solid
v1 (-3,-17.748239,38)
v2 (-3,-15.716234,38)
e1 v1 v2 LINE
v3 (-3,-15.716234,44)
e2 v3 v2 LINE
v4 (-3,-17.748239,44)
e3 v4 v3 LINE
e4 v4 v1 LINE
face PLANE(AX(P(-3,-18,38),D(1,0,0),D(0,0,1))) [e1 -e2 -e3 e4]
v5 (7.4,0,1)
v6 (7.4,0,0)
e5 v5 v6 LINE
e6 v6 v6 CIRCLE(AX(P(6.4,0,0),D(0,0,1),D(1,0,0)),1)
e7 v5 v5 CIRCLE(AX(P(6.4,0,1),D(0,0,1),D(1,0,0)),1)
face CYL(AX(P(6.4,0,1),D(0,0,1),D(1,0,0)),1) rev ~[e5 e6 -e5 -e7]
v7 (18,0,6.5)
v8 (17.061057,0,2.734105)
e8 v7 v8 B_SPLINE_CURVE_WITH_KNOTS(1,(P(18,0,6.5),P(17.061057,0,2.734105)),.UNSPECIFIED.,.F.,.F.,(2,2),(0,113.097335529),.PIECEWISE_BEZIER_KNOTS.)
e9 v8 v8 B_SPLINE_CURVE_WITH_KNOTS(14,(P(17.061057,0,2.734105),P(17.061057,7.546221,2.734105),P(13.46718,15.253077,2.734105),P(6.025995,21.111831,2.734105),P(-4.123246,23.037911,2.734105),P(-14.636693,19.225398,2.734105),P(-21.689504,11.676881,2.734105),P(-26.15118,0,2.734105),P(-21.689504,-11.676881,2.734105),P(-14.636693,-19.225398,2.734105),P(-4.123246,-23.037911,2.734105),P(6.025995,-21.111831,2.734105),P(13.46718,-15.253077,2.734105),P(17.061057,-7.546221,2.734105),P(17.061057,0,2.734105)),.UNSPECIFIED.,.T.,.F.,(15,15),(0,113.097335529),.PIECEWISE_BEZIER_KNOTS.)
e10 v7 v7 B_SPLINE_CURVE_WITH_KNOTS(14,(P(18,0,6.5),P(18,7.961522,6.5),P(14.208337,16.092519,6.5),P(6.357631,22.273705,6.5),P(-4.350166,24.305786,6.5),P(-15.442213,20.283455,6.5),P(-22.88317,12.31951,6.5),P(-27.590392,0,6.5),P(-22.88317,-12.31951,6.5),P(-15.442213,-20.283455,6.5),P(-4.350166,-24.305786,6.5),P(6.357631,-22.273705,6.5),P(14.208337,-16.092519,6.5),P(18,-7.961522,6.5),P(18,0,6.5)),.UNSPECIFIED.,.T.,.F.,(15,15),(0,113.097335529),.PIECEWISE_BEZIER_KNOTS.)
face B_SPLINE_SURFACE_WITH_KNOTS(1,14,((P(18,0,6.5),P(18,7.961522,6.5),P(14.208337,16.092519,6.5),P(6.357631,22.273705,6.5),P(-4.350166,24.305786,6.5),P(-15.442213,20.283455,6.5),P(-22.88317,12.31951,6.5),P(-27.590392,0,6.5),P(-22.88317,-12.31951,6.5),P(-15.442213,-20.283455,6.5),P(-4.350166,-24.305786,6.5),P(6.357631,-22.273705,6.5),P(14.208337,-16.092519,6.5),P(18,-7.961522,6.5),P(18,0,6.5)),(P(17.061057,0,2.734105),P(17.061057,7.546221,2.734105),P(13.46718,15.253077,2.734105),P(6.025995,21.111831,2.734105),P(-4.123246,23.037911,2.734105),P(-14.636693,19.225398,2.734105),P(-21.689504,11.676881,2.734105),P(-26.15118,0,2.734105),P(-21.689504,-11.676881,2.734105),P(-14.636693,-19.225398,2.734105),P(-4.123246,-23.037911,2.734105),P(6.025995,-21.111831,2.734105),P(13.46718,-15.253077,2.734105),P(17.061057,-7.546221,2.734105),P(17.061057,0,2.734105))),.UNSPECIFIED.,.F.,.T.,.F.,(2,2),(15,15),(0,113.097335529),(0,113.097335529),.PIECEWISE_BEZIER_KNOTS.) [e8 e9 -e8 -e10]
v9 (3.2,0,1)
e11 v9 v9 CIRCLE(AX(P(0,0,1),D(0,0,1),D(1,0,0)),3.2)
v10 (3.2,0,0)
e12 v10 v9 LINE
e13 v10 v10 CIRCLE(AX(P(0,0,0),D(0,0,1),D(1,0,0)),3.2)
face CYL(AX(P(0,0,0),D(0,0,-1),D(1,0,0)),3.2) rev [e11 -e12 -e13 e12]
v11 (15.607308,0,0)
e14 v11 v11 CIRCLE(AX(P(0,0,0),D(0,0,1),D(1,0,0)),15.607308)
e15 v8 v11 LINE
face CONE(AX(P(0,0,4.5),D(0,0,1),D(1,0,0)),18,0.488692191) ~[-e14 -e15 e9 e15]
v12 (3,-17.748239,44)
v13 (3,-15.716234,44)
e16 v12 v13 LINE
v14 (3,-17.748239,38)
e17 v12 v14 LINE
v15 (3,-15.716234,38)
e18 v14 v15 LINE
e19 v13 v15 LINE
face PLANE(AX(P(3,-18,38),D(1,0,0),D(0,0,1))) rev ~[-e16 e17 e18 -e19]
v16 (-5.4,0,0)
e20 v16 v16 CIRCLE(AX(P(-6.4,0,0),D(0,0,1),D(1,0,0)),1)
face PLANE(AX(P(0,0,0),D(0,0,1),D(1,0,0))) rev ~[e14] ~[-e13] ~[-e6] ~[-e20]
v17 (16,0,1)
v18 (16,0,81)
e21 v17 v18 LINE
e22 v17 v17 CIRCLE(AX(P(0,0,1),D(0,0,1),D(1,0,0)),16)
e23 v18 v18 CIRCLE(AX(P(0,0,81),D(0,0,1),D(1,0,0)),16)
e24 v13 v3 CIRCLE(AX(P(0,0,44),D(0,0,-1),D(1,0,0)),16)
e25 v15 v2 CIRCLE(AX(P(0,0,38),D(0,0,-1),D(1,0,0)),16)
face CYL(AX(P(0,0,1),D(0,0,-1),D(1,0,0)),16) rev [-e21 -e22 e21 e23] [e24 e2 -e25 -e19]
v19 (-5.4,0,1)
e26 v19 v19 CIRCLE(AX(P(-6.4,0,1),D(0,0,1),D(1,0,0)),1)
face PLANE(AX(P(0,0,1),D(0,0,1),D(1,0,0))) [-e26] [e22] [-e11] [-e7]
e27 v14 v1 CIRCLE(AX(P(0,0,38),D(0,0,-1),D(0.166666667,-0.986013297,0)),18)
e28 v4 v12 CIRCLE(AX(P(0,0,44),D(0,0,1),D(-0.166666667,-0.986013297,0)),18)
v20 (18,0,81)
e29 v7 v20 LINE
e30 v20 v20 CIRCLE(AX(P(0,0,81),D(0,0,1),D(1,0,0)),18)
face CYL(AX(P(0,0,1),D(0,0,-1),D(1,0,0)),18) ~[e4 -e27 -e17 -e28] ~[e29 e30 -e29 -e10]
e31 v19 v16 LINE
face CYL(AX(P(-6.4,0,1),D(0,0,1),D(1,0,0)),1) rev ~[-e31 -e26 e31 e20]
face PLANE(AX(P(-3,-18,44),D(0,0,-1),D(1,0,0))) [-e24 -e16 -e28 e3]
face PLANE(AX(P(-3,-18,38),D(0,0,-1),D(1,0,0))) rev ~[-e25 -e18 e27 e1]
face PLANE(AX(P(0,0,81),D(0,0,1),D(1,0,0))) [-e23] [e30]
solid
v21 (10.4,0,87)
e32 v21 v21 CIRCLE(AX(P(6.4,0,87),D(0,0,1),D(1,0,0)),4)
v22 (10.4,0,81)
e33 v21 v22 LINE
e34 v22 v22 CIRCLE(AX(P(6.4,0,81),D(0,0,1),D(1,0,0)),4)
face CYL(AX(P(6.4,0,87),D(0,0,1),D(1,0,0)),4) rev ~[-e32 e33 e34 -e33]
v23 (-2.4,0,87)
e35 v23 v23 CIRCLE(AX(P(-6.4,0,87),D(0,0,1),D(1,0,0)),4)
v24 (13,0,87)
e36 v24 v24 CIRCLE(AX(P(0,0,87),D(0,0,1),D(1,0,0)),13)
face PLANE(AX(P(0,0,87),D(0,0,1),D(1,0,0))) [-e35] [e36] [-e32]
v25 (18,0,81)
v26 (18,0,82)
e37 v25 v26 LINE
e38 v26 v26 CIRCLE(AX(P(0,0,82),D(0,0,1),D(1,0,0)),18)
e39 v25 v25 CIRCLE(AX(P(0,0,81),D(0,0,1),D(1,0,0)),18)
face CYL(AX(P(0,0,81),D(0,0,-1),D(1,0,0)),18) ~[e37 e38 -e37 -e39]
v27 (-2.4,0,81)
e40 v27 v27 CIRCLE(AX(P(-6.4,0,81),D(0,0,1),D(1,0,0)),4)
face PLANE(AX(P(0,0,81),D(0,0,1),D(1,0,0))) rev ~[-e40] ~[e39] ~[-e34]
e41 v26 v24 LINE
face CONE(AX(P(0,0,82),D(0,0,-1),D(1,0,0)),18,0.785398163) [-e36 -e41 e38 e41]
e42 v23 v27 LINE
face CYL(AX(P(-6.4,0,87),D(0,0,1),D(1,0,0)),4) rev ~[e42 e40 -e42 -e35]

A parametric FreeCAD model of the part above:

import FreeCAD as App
import Part
import Sketcher


def edges_at(feature, points):
    """Names of the edges that pass closest to the given points."""
    edges = feature.Shape.Edges
    near = lambda p: min(range(len(edges)), key=lambda i: edges[i].distToShape(Part.Vertex(*p))[0])
    return sorted({f"Edge{near(p) + 1}" for p in points})

doc = App.newDocument("Part")
params = doc.addObject("Spreadsheet::Sheet", "Params")
for row, (alias, value) in enumerate([
    ("sketch1_diameter", "36 mm"),
    ("sketch1_diameter2", "6.4 mm"),
    ("pad1_length", "1 mm"),
    ("sketch2_diameter", "2 mm"),
    ("pocket1_length", "25 mm"),
    ("sketch3_diameter", "36 mm"),
    ("sketch3_diameter2", "32 mm"),
    ("pad2_length", "80 mm"),
    ("sketch4_width", "6 mm"),
    ("pocket2_length", "25 mm"),
    ("chamfer_size", "4.5 mm"),
    ("chamfer_size2", "2.392692 mm"),
    ("chamfer2_size", "2 mm"),
    ("sketch5_diameter", "36 mm"),
    ("pad3_length", "6 mm"),
    ("sketch6_diameter", "8 mm"),
    ("pocket3_length", "25 mm"),
    ("chamfer3_size", "5 mm"),
], start=1):
    params.set(f"A{row}", alias)
    params.set(f"B{row}", "=" + value)
    params.setAlias(f"B{row}", alias)

body = doc.addObject("PartDesign::Body", "Body")

# Sketch on XY plane
sketch1 = doc.addObject("Sketcher::SketchObject", "Sketch")
body.addObject(sketch1)
sketch1.AttachmentSupport = (doc.XY_Plane, [""])
sketch1.MapMode = "FlatFace"
sketch1.addGeometry([
    Part.Circle(App.Vector(0, 0, 0), App.Vector(0, 0, 1), 18),
    Part.Circle(App.Vector(0, 0, 0), App.Vector(0, 0, 1), 3.2),
], False)
sketch1.addConstraint([
    Sketcher.Constraint("Coincident", 0, 3, -1, 1),
    Sketcher.Constraint("Coincident", 1, 3, -1, 1),
    Sketcher.Constraint("Diameter", 0, 36.0),
    Sketcher.Constraint("Diameter", 1, 6.4),
])
sketch1.setExpression("Constraints[2]", "Params.sketch1_diameter")
sketch1.setExpression("Constraints[3]", "Params.sketch1_diameter2")
pad1 = doc.addObject("PartDesign::Pad", "Pad")
body.addObject(pad1)
pad1.Profile = sketch1
pad1.setExpression("Length", "Params.pad1_length")

# Sketch on XY plane
sketch2 = doc.addObject("Sketcher::SketchObject", "Sketch001")
body.addObject(sketch2)
sketch2.AttachmentSupport = (doc.XY_Plane, [""])
sketch2.MapMode = "FlatFace"
sketch2.AttachmentOffset = App.Placement(App.Vector(0, 0, 1), App.Rotation())
sketch2.addGeometry([
    Part.Circle(App.Vector(-6.4, 0, 0), App.Vector(0, 0, 1), 1),
    Part.Circle(App.Vector(6.4, 0, 0), App.Vector(0, 0, 1), 1),
], False)
sketch2.addConstraint([
    Sketcher.Constraint("Equal", 0, 1),
    Sketcher.Constraint("Symmetric", 0, 3, 1, 3, -1, 1),
    Sketcher.Constraint("PointOnObject", 0, 3, -1),
    Sketcher.Constraint("Diameter", 0, 2.0),
    Sketcher.Constraint("DistanceX", 0, 3, -1, 1, 6.4),
])
sketch2.setExpression("Constraints[3]", "Params.sketch2_diameter")
pocket1 = doc.addObject("PartDesign::Pocket", "Pocket")
body.addObject(pocket1)
pocket1.Profile = sketch2
pocket1.setExpression("Length", "Params.pocket1_length")

# Sketch on XY plane
sketch3 = doc.addObject("Sketcher::SketchObject", "Sketch002")
body.addObject(sketch3)
sketch3.AttachmentSupport = (doc.XY_Plane, [""])
sketch3.MapMode = "FlatFace"
sketch3.AttachmentOffset = App.Placement(App.Vector(0, 0, 1), App.Rotation())
sketch3.addGeometry([
    Part.Circle(App.Vector(0, 0, 0), App.Vector(0, 0, 1), 18),
    Part.Circle(App.Vector(0, 0, 0), App.Vector(0, 0, 1), 16),
], False)
sketch3.addConstraint([
    Sketcher.Constraint("Coincident", 0, 3, -1, 1),
    Sketcher.Constraint("Coincident", 1, 3, -1, 1),
    Sketcher.Constraint("Diameter", 0, 36.0),
    Sketcher.Constraint("Diameter", 1, 32.0),
])
sketch3.setExpression("Constraints[2]", "Params.sketch3_diameter")
sketch3.setExpression("Constraints[3]", "Params.sketch3_diameter2")
pad2 = doc.addObject("PartDesign::Pad", "Pad001")
body.addObject(pad2)
pad2.Profile = sketch3
pad2.setExpression("Length", "Params.pad2_length")

# Sketch on XZ plane
sketch4 = doc.addObject("Sketcher::SketchObject", "Sketch003")
body.addObject(sketch4)
sketch4.AttachmentSupport = (doc.XZ_Plane, [""])
sketch4.MapMode = "FlatFace"
sketch4.AttachmentOffset = App.Placement(App.Vector(0, 0, 18), App.Rotation())
sketch4.addGeometry([
    Part.LineSegment(App.Vector(-3, 44, 0), App.Vector(-3, 38, 0)),
    Part.LineSegment(App.Vector(-3, 38, 0), App.Vector(3, 38, 0)),
    Part.LineSegment(App.Vector(3, 38, 0), App.Vector(3, 44, 0)),
    Part.LineSegment(App.Vector(3, 44, 0), App.Vector(-3, 44, 0)),
], False)
sketch4.addConstraint([
    Sketcher.Constraint("Coincident", 0, 2, 1, 1),
    Sketcher.Constraint("Coincident", 1, 2, 2, 1),
    Sketcher.Constraint("Coincident", 2, 2, 3, 1),
    Sketcher.Constraint("Coincident", 3, 2, 0, 1),
    Sketcher.Constraint("Vertical", 0),
    Sketcher.Constraint("Horizontal", 1),
    Sketcher.Constraint("Vertical", 2),
    Sketcher.Constraint("Horizontal", 3),
    Sketcher.Constraint("Equal", 3, 0),
    Sketcher.Constraint("DistanceX", 1, 1, 1, 2, 6.0),
    Sketcher.Constraint("DistanceX", 0, 2, -1, 1, 3.0),
    Sketcher.Constraint("DistanceY", -1, 1, 0, 2, 38.0),
])
sketch4.setExpression("Constraints[9]", "Params.sketch4_width")
pocket2 = doc.addObject("PartDesign::Pocket", "Pocket001")
body.addObject(pocket2)
pocket2.Profile = sketch4
pocket2.setExpression("Length", "Params.pocket2_length")
doc.recompute()

chamfer = doc.addObject("PartDesign::Chamfer", "Chamfer")
body.addObject(chamfer)
chamfer.Base = (pocket2, edges_at(pocket2, [(-18, 0, 0)]))
chamfer.ChamferType = "Two distances"
chamfer.setExpression("Size", "Params.chamfer_size")
chamfer.setExpression("Size2", "Params.chamfer_size2")
chamfer.FlipDirection = True
doc.recompute()

chamfer2 = doc.addObject("PartDesign::Chamfer", "Chamfer001")
body.addObject(chamfer2)
chamfer2.Base = (chamfer, edges_at(chamfer, [(-18, 0, 4.5)]))
chamfer2.setExpression("Size", "Params.chamfer2_size")
body2 = doc.addObject("PartDesign::Body", "Body001")

# Sketch on XY plane
sketch5 = doc.addObject("Sketcher::SketchObject", "Sketch004")
body2.addObject(sketch5)
sketch5.AttachmentSupport = (doc.getObject("XY_Plane001"), [""])
sketch5.MapMode = "FlatFace"
sketch5.AttachmentOffset = App.Placement(App.Vector(0, 0, 81), App.Rotation())
sketch5.addGeometry(Part.Circle(App.Vector(0, 0, 0), App.Vector(0, 0, 1), 18), False)
sketch5.addConstraint([
    Sketcher.Constraint("Coincident", 0, 3, -1, 1),
    Sketcher.Constraint("Diameter", 0, 36.0),
])
sketch5.setExpression("Constraints[1]", "Params.sketch5_diameter")
pad3 = doc.addObject("PartDesign::Pad", "Pad002")
body2.addObject(pad3)
pad3.Profile = sketch5
pad3.setExpression("Length", "Params.pad3_length")

# Sketch on XY plane
sketch6 = doc.addObject("Sketcher::SketchObject", "Sketch005")
body2.addObject(sketch6)
sketch6.AttachmentSupport = (doc.getObject("XY_Plane001"), [""])
sketch6.MapMode = "FlatFace"
sketch6.AttachmentOffset = App.Placement(App.Vector(0, 0, 87), App.Rotation())
sketch6.addGeometry([
    Part.Circle(App.Vector(-6.4, 0, 0), App.Vector(0, 0, 1), 4),
    Part.Circle(App.Vector(6.4, 0, 0), App.Vector(0, 0, 1), 4),
], False)
sketch6.addConstraint([
    Sketcher.Constraint("Equal", 0, 1),
    Sketcher.Constraint("Symmetric", 0, 3, 1, 3, -1, 1),
    Sketcher.Constraint("PointOnObject", 0, 3, -1),
    Sketcher.Constraint("Diameter", 0, 8.0),
    Sketcher.Constraint("DistanceX", 0, 3, -1, 1, 6.4),
])
sketch6.setExpression("Constraints[3]", "Params.sketch6_diameter")
pocket3 = doc.addObject("PartDesign::Pocket", "Pocket002")
body2.addObject(pocket3)
pocket3.Profile = sketch6
pocket3.setExpression("Length", "Params.pocket3_length")
doc.recompute()

chamfer3 = doc.addObject("PartDesign::Chamfer", "Chamfer002")
body2.addObject(chamfer3)
chamfer3.Base = (pocket3, edges_at(pocket3, [(-18, 0, 87)]))
chamfer3.setExpression("Size", "Params.chamfer3_size")

doc.recompute()
